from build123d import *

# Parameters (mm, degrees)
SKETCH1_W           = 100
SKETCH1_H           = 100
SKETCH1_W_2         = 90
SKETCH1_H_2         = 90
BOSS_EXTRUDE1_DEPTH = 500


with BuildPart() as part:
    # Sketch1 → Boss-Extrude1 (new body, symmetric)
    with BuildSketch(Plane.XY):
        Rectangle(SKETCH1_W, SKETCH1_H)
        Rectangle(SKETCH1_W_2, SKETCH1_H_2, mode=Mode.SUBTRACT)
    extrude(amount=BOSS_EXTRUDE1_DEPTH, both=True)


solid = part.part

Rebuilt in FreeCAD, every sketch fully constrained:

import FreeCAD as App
import Part
import Sketcher
Q = App.Units.Quantity

doc = App.newDocument("Part")
body = doc.addObject("PartDesign::Body", "Body")

sketch1 = body.newObject("Sketcher::SketchObject", "Sketch")
sketch1.AttachmentSupport = (doc.getObject("XY_Plane"), [""])
sketch1.MapMode = "FlatFace"
sketch1.addGeometry([
    Part.LineSegment(App.Vector(-50, 50, 0), App.Vector(-50, -50, 0)),
    Part.LineSegment(App.Vector(-50, -50, 0), App.Vector(50, -50, 0)),
    Part.LineSegment(App.Vector(50, -50, 0), App.Vector(50, 50, 0)),
    Part.LineSegment(App.Vector(50, 50, 0), App.Vector(-50, 50, 0)),
    Part.LineSegment(App.Vector(45, -45, 0), App.Vector(-45, -45, 0)),
    Part.LineSegment(App.Vector(-45, -45, 0), App.Vector(-45, 45, 0)),
    Part.LineSegment(App.Vector(-45, 45, 0), App.Vector(45, 45, 0)),
    Part.LineSegment(App.Vector(45, 45, 0), App.Vector(45, -45, 0)),
], False)
sketch1.addConstraint([
    Sketcher.Constraint("Coincident", 0, 2, 1, 1),
    Sketcher.Constraint("Coincident", 1, 2, 2, 1),
    Sketcher.Constraint("Coincident", 2, 2, 3, 1),
    Sketcher.Constraint("Coincident", 3, 2, 0, 1),
    Sketcher.Constraint("Coincident", 4, 2, 5, 1),
    Sketcher.Constraint("Coincident", 5, 2, 6, 1),
    Sketcher.Constraint("Coincident", 6, 2, 7, 1),
    Sketcher.Constraint("Coincident", 7, 2, 4, 1),
    Sketcher.Constraint("Vertical", 0),
    Sketcher.Constraint("Horizontal", 1),
    Sketcher.Constraint("Vertical", 2),
    Sketcher.Constraint("Horizontal", 3),
    Sketcher.Constraint("Horizontal", 4),
    Sketcher.Constraint("Vertical", 5),
    Sketcher.Constraint("Horizontal", 6),
    Sketcher.Constraint("Vertical", 7),
    Sketcher.Constraint("Symmetric", 0, 2, 2, 2, -1, 1),
    Sketcher.Constraint("Symmetric", 4, 2, 6, 2, -1, 1),
    Sketcher.Constraint("Equal", 3, 0),
    Sketcher.Constraint("Equal", 6, 5),
    Sketcher.Constraint("DistanceX", 1, 1, 1, 2, Q("100 mm")),
    Sketcher.Constraint("DistanceX", 4, 2, 4, 1, Q("90 mm")),
])
pad1 = body.newObject("PartDesign::Pad", "Pad")
pad1.Profile = sketch1
pad1.Length = 1000
pad1.Midplane = True

doc.recompute()
